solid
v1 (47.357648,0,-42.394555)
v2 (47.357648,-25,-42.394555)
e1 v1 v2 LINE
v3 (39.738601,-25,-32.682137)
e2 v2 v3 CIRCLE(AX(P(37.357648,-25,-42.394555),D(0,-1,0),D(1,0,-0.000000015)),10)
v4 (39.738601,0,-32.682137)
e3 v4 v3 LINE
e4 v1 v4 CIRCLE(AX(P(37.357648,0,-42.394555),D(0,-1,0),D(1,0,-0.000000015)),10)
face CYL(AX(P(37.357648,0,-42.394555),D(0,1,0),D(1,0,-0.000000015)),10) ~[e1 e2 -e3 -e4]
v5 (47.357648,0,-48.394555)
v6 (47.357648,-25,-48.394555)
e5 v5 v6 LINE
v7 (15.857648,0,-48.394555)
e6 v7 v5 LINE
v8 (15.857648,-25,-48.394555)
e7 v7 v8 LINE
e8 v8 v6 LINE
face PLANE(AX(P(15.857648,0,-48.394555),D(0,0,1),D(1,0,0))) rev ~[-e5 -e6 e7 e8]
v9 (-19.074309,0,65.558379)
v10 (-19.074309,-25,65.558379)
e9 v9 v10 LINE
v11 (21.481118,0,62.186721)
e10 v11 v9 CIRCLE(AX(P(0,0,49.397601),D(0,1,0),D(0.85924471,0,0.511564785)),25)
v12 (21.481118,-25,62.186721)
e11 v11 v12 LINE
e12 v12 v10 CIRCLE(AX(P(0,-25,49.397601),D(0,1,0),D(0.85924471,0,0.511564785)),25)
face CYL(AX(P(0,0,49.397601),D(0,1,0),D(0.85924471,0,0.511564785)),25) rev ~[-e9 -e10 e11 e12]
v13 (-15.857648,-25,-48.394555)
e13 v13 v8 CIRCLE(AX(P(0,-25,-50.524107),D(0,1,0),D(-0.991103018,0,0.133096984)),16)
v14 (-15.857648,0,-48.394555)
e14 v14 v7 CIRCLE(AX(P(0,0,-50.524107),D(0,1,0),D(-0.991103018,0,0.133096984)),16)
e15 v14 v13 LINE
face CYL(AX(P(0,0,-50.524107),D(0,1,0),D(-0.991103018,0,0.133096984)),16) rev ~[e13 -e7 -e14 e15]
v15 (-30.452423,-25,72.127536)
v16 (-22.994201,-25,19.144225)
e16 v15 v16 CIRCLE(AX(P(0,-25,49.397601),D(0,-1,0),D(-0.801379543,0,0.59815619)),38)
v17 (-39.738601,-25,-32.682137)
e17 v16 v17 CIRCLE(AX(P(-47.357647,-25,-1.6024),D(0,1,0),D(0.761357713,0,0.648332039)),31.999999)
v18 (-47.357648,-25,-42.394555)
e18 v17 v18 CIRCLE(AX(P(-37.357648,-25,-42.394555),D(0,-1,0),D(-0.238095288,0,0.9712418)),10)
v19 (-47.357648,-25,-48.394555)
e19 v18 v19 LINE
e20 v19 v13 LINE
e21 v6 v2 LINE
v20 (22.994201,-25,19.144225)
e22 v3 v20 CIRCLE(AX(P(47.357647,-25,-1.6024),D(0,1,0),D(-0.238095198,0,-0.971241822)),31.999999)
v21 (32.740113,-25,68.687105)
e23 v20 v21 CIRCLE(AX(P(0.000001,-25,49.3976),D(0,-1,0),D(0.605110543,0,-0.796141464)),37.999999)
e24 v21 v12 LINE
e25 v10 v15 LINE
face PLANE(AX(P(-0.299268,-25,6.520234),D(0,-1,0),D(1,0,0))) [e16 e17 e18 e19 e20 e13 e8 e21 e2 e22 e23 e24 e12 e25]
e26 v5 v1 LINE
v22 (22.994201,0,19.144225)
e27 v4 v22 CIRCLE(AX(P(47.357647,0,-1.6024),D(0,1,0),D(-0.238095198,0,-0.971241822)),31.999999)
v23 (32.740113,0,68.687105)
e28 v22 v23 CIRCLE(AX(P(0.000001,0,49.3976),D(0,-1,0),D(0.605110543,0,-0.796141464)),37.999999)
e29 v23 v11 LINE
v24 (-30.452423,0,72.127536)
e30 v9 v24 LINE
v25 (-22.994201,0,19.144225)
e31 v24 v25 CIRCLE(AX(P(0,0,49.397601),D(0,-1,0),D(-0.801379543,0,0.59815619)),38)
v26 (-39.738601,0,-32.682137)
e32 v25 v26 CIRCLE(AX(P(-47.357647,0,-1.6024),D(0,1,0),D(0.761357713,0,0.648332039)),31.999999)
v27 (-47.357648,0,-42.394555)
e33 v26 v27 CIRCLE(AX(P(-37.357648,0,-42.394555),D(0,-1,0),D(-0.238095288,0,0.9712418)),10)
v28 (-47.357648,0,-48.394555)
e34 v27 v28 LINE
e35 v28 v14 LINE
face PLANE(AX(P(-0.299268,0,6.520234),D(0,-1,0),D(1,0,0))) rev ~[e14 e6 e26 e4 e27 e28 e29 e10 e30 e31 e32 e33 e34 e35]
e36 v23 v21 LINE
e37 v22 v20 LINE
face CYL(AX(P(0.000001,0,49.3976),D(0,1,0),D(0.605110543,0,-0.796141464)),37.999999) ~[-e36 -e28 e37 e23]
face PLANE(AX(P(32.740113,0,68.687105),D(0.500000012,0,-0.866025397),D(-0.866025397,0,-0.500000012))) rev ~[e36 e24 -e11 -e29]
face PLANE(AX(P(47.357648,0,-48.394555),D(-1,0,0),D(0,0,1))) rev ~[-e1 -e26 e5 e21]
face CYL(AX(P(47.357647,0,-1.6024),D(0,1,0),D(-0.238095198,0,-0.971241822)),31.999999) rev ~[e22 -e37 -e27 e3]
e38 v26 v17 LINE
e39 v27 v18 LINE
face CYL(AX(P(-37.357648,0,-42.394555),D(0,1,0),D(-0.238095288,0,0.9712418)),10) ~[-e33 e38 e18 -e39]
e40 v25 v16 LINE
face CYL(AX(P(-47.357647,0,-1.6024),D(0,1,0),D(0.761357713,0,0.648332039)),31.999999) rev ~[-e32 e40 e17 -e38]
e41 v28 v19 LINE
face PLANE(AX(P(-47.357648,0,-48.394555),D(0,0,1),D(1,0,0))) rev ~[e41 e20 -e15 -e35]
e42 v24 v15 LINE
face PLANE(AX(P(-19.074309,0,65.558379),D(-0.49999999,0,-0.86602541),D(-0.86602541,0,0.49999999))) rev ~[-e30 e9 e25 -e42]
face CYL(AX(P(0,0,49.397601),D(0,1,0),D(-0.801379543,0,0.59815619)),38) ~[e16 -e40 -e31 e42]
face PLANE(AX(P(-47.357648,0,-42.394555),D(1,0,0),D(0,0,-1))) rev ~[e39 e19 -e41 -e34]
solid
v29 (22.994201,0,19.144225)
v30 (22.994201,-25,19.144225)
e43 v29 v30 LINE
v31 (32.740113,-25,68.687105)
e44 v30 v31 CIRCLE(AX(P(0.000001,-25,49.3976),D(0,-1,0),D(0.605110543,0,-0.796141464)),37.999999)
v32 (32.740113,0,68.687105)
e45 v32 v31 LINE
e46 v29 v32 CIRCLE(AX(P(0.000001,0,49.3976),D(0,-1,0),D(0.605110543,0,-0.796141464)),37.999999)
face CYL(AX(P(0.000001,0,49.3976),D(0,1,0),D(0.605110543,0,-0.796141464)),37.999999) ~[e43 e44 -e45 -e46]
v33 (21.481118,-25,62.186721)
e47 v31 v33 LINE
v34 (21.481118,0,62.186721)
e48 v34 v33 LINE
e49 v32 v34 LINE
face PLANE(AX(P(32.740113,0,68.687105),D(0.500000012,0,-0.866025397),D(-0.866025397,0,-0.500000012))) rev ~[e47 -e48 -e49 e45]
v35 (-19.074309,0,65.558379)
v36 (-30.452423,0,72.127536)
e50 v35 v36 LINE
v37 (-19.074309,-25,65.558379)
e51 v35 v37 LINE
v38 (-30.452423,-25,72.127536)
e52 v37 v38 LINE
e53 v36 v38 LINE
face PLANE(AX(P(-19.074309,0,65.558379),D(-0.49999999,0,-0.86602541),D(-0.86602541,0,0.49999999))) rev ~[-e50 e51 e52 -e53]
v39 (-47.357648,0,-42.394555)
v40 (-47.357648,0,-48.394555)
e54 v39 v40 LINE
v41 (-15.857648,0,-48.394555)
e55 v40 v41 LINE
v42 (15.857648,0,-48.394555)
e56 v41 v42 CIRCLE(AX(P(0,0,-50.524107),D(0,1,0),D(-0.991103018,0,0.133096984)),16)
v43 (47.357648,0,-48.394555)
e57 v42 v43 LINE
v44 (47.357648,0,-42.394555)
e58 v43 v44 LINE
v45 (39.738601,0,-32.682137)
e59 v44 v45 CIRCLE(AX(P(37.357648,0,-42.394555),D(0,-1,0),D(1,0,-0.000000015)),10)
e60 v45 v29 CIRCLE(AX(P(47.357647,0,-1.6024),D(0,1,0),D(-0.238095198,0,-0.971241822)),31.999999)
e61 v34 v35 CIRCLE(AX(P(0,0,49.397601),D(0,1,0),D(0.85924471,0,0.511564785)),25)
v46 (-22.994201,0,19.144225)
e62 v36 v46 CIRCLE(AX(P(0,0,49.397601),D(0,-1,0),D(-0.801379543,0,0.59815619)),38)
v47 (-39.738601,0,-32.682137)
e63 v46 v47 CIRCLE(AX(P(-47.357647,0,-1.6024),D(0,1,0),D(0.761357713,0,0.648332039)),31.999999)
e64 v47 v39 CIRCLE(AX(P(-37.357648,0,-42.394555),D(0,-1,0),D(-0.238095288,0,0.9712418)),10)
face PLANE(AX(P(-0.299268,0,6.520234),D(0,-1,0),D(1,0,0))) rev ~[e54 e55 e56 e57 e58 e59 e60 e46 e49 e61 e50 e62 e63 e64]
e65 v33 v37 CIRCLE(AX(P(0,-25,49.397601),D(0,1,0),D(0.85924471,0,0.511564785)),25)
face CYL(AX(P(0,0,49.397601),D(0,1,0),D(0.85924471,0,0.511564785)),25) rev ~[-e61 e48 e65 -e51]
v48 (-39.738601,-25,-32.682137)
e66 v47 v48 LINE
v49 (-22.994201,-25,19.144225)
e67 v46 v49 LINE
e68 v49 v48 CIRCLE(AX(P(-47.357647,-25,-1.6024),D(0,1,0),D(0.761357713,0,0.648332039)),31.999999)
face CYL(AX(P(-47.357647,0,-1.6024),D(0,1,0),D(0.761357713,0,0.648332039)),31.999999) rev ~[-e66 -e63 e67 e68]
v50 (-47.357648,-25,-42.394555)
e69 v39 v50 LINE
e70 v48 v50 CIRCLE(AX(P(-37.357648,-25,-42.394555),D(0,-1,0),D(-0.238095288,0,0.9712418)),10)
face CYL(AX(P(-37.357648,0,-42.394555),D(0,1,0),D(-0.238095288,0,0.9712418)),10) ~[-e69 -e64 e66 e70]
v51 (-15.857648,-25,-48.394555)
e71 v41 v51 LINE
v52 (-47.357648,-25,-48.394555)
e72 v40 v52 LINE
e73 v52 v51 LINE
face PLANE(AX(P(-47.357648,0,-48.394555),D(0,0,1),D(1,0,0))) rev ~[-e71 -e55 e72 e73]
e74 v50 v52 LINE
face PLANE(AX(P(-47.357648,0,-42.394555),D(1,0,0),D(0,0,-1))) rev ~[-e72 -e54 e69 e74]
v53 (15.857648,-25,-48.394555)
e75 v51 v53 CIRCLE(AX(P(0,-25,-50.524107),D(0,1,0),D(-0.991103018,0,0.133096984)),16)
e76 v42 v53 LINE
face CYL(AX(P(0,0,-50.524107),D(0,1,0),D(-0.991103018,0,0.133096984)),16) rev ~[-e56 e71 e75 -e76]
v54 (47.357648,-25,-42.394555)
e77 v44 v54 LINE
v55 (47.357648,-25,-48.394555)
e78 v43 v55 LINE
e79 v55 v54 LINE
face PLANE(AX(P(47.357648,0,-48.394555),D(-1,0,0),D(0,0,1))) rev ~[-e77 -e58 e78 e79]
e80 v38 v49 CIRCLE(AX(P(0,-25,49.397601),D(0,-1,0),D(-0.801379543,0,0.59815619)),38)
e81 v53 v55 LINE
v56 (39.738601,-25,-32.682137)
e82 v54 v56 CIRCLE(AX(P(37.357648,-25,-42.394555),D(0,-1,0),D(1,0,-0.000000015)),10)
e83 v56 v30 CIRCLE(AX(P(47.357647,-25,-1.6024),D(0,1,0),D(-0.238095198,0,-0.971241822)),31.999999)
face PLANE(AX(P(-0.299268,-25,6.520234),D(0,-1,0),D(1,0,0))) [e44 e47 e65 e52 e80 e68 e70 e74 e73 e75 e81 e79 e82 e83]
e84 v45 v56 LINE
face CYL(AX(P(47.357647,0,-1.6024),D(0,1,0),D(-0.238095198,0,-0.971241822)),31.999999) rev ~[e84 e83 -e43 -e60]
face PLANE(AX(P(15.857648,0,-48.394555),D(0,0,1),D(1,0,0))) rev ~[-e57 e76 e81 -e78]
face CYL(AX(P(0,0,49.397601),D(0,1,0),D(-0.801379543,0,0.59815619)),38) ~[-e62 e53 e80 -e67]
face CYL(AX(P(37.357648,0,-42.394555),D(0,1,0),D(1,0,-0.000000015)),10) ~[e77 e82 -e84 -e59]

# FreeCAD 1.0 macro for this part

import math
import FreeCAD as App
import Part
import Sketcher

V = App.Vector
Q = App.Units.Quantity

doc = App.newDocument("Part")
body = doc.addObject("PartDesign::Body", "Body")

sketch1 = body.newObject("Sketcher::SketchObject", "Sketch")
sketch1.AttachmentSupport = (doc.getObject("XZ_Plane"), [""])
sketch1.MapMode = "FlatFace"
sketch1.addGeometry([
    Part.LineSegment(V(-19.074309, 65.558379, 0), V(-30.452423, 72.127536, 0)),
    Part.ArcOfCircle(Part.Circle(V(0, 49.397601, 0), V(0, 0, 1), 38), math.radians(143.262042), math.radians(232.763203)),
    Part.ArcOfCircle(Part.Circle(V(-47.357647, -1.6024, 0), V(0, 0, 1), 31.999999), math.radians(-76.225855), math.radians(40.415962)),
    Part.ArcOfCircle(Part.Circle(V(-37.357648, -42.394555, 0), V(0, 0, 1), 10), math.radians(103.77415), math.radians(180.000001)),
    Part.LineSegment(V(-47.357648, -42.394555, 0), V(-47.357648, -48.394555, 0)),
    Part.LineSegment(V(-47.357648, -48.394555, 0), V(-15.857648, -48.394555, 0)),
    Part.ArcOfCircle(Part.Circle(V(0, -50.524107, 0), V(0, 0, 1), 16), math.radians(7.648592), math.radians(172.351408)),
    Part.LineSegment(V(15.857648, -48.394555, 0), V(47.357648, -48.394555, 0)),
    Part.LineSegment(V(47.357648, -48.394555, 0), V(47.357648, -42.394555, 0)),
    Part.ArcOfCircle(Part.Circle(V(37.357648, -42.394555, 0), V(0, 0, 1), 10), math.radians(-0.000001), math.radians(76.22585)),
    Part.ArcOfCircle(Part.Circle(V(47.357647, -1.6024, 0), V(0, 0, 1), 31.999999), math.radians(139.584038), math.radians(256.225855)),
    Part.ArcOfCircle(Part.Circle(V(0.000001, 49.3976, 0), V(0, 0, 1), 37.999999), math.radians(-52.763203), math.radians(30.505333)),
    Part.LineSegment(V(32.740113, 68.687105, 0), V(21.481118, 62.186721, 0)),
    Part.ArcOfCircle(Part.Circle(V(0, 49.397601, 0), V(0, 0, 1), 25), math.radians(139.72694), math.radians(390.768116)),
], False)
sketch1.addConstraint([
    Sketcher.Constraint("Coincident", 0, 2, 1, 1),
    Sketcher.Constraint("Coincident", 1, 2, 2, 2),
    Sketcher.Constraint("Tangent", 2, 1, 3, 1),
    Sketcher.Constraint("Tangent", 3, 2, 4, 1),
    Sketcher.Constraint("Coincident", 4, 2, 5, 1),
    Sketcher.Constraint("Coincident", 5, 2, 6, 2),
    Sketcher.Constraint("Coincident", 6, 1, 7, 1),
    Sketcher.Constraint("Coincident", 7, 2, 8, 1),
    Sketcher.Constraint("Tangent", 8, 2, 9, 1),
    Sketcher.Constraint("Tangent", 9, 2, 10, 2),
    Sketcher.Constraint("Coincident", 10, 1, 11, 1),
    Sketcher.Constraint("Coincident", 11, 2, 12, 1),
    Sketcher.Constraint("Coincident", 12, 2, 13, 2),
    Sketcher.Constraint("Coincident", 13, 1, 0, 1),
    Sketcher.Constraint("Vertical", 4),
    Sketcher.Constraint("Horizontal", 5),
    Sketcher.Constraint("Horizontal", 7),
    Sketcher.Constraint("Vertical", 8),
    Sketcher.Constraint("Coincident", 11, 3, 1, 3),
    Sketcher.Constraint("Coincident", 13, 3, 1, 3),
    Sketcher.Constraint("Equal", 3, 9),
    Sketcher.Constraint("Equal", 2, 10),
    Sketcher.Constraint("Equal", 1, 11),
    Sketcher.Constraint("Symmetric", 3, 3, 9, 3, -2),
    Sketcher.Constraint("Symmetric", 5, 2, 6, 1, -2),
    Sketcher.Constraint("Symmetric", 1, 2, 10, 1, -2),
    Sketcher.Constraint("Vertical", 2, 3, 3, 2),
    Sketcher.Constraint("Radius", 1, Q("38 mm")),
    Sketcher.Constraint("Radius", 2, Q("31.999999 mm")),
    Sketcher.Constraint("Radius", 3, Q("10 mm")),
    Sketcher.Constraint("Radius", 6, Q("16 mm")),
    Sketcher.Constraint("Radius", 13, Q("25 mm")),
    Sketcher.Constraint("DistanceY", 4, 2, 4, 1, Q("6 mm")),
    Sketcher.Constraint("Angle", 0, Q("150.000001 deg")),
    Sketcher.Constraint("Angle", 12, Q("-149.999999 deg")),
    Sketcher.Constraint("DistanceX", 5, 1, 5, 2, Q("31.5 mm")),
    Sketcher.Constraint("DistanceY", 2, 3, 1, 3, Q("51 mm")),
    Sketcher.Constraint("DistanceY", -1, 1, 1, 3, Q("49.397601 mm")),
    Sketcher.Constraint("DistanceX", 1, 2, -1, 1, Q("22.994201 mm")),
    Sketcher.Constraint("DistanceY", -1, 1, 12, 2, Q("62.186721 mm")),
    Sketcher.Constraint("DistanceX", 13, 1, -1, 1, Q("19.074309 mm")),
])
pad1 = body.newObject("PartDesign::Pad", "Pad")
pad1.Profile = sketch1
pad1.Length = 25
body2 = doc.addObject("PartDesign::Body", "Body001")

sketch2 = body2.newObject("Sketcher::SketchObject", "Sketch001")
sketch2.AttachmentSupport = (doc.getObject("XZ_Plane001"), [""])
sketch2.MapMode = "FlatFace"
sketch2.addGeometry([
    Part.LineSegment(V(-19.074309, 65.558379, 0), V(-30.452423, 72.127536, 0)),
    Part.ArcOfCircle(Part.Circle(V(0, 49.397601, 0), V(0, 0, 1), 38), math.radians(143.262042), math.radians(232.763203)),
    Part.ArcOfCircle(Part.Circle(V(-47.357647, -1.6024, 0), V(0, 0, 1), 31.999999), math.radians(-76.225855), math.radians(40.415962)),
    Part.ArcOfCircle(Part.Circle(V(-37.357648, -42.394555, 0), V(0, 0, 1), 10), math.radians(103.77415), math.radians(180.000001)),
    Part.LineSegment(V(-47.357648, -42.394555, 0), V(-47.357648, -48.394555, 0)),
    Part.LineSegment(V(-47.357648, -48.394555, 0), V(-15.857648, -48.394555, 0)),
    Part.ArcOfCircle(Part.Circle(V(0, -50.524107, 0), V(0, 0, 1), 16), math.radians(7.648592), math.radians(172.351408)),
    Part.LineSegment(V(15.857648, -48.394555, 0), V(47.357648, -48.394555, 0)),
    Part.LineSegment(V(47.357648, -48.394555, 0), V(47.357648, -42.394555, 0)),
    Part.ArcOfCircle(Part.Circle(V(37.357648, -42.394555, 0), V(0, 0, 1), 10), math.radians(-0.000001), math.radians(76.22585)),
    Part.ArcOfCircle(Part.Circle(V(47.357647, -1.6024, 0), V(0, 0, 1), 31.999999), math.radians(139.584038), math.radians(256.225855)),
    Part.ArcOfCircle(Part.Circle(V(0.000001, 49.3976, 0), V(0, 0, 1), 37.999999), math.radians(-52.763203), math.radians(30.505333)),
    Part.LineSegment(V(32.740113, 68.687105, 0), V(21.481118, 62.186721, 0)),
    Part.ArcOfCircle(Part.Circle(V(0, 49.397601, 0), V(0, 0, 1), 25), math.radians(139.72694), math.radians(390.768116)),
], False)
sketch2.addConstraint([
    Sketcher.Constraint("Coincident", 0, 2, 1, 1),
    Sketcher.Constraint("Coincident", 1, 2, 2, 2),
    Sketcher.Constraint("Tangent", 2, 1, 3, 1),
    Sketcher.Constraint("Tangent", 3, 2, 4, 1),
    Sketcher.Constraint("Coincident", 4, 2, 5, 1),
    Sketcher.Constraint("Coincident", 5, 2, 6, 2),
    Sketcher.Constraint("Coincident", 6, 1, 7, 1),
    Sketcher.Constraint("Coincident", 7, 2, 8, 1),
    Sketcher.Constraint("Tangent", 8, 2, 9, 1),
    Sketcher.Constraint("Tangent", 9, 2, 10, 2),
    Sketcher.Constraint("Coincident", 10, 1, 11, 1),
    Sketcher.Constraint("Coincident", 11, 2, 12, 1),
    Sketcher.Constraint("Coincident", 12, 2, 13, 2),
    Sketcher.Constraint("Coincident", 13, 1, 0, 1),
    Sketcher.Constraint("Vertical", 4),
    Sketcher.Constraint("Horizontal", 5),
    Sketcher.Constraint("Horizontal", 7),
    Sketcher.Constraint("Vertical", 8),
    Sketcher.Constraint("Coincident", 11, 3, 1, 3),
    Sketcher.Constraint("Coincident", 13, 3, 1, 3),
    Sketcher.Constraint("Equal", 3, 9),
    Sketcher.Constraint("Equal", 2, 10),
    Sketcher.Constraint("Equal", 1, 11),
    Sketcher.Constraint("Symmetric", 3, 3, 9, 3, -2),
    Sketcher.Constraint("Symmetric", 5, 2, 6, 1, -2),
    Sketcher.Constraint("Symmetric", 1, 2, 10, 1, -2),
    Sketcher.Constraint("Vertical", 2, 3, 3, 2),
    Sketcher.Constraint("Radius", 1, Q("38 mm")),
    Sketcher.Constraint("Radius", 2, Q("31.999999 mm")),
    Sketcher.Constraint("Radius", 3, Q("10 mm")),
    Sketcher.Constraint("Radius", 6, Q("16 mm")),
    Sketcher.Constraint("Radius", 13, Q("25 mm")),
    Sketcher.Constraint("DistanceY", 4, 2, 4, 1, Q("6 mm")),
    Sketcher.Constraint("Angle", 0, Q("150.000001 deg")),
    Sketcher.Constraint("Angle", 12, Q("-149.999999 deg")),
    Sketcher.Constraint("DistanceX", 5, 1, 5, 2, Q("31.5 mm")),
    Sketcher.Constraint("DistanceY", 2, 3, 1, 3, Q("51 mm")),
    Sketcher.Constraint("DistanceY", -1, 1, 1, 3, Q("49.397601 mm")),
    Sketcher.Constraint("DistanceX", 1, 2, -1, 1, Q("22.994201 mm")),
    Sketcher.Constraint("DistanceY", -1, 1, 12, 2, Q("62.186721 mm")),
    Sketcher.Constraint("DistanceX", 13, 1, -1, 1, Q("19.074309 mm")),
])
pad2 = body2.newObject("PartDesign::Pad", "Pad001")
pad2.Profile = sketch2
pad2.Length = 25

doc.recompute()
